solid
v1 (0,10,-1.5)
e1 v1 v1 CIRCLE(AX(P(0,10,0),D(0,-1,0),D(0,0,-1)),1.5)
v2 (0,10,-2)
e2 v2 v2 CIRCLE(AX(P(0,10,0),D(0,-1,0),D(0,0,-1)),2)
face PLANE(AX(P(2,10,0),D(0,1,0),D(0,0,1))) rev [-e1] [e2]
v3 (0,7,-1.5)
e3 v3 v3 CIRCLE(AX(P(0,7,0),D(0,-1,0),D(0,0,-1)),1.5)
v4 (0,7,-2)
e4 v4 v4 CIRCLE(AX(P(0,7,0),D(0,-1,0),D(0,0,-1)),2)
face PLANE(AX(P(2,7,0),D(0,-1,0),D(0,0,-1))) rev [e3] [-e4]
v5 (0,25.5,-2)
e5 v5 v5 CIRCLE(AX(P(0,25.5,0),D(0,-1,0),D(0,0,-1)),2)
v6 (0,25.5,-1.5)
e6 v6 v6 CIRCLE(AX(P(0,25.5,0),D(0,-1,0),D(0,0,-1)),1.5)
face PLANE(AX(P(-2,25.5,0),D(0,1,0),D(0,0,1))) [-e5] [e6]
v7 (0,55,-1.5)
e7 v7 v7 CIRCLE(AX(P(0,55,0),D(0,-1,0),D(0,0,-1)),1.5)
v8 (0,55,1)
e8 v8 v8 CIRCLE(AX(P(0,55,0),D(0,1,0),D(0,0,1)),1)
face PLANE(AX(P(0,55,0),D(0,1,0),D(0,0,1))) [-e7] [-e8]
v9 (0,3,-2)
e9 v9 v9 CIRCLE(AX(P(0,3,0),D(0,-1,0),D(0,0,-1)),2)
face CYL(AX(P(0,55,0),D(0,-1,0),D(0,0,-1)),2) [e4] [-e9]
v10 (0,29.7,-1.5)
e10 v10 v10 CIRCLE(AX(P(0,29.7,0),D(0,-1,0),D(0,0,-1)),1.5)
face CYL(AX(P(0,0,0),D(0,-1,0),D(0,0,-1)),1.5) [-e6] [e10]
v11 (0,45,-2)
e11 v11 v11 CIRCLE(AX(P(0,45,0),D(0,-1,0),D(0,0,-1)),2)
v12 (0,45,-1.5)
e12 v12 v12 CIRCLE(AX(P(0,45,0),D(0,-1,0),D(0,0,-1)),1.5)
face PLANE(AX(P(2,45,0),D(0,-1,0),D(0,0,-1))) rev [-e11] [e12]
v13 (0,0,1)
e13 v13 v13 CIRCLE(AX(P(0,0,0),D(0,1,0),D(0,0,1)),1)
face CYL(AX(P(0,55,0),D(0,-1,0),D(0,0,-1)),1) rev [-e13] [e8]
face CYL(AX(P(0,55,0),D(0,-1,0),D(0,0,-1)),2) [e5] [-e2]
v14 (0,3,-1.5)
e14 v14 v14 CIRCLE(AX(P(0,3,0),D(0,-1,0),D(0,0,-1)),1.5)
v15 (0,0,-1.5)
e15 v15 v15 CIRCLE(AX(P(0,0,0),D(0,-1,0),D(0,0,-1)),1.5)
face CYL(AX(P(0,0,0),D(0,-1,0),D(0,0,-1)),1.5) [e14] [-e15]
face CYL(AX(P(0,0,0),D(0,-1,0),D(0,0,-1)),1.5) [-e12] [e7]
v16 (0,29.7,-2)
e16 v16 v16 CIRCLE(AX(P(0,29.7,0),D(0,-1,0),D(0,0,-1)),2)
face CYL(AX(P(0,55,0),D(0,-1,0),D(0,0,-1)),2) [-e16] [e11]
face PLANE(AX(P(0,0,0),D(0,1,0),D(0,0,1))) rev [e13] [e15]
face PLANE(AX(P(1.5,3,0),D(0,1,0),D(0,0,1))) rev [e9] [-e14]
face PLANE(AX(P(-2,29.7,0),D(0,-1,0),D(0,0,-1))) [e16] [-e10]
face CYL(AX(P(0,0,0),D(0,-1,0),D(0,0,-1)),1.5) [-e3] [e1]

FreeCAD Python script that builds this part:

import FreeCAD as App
import Part
import Sketcher

doc = App.newDocument("Part")
body = doc.addObject("PartDesign::Body", "Body")

# Sketch on XZ plane
sketch1 = doc.addObject("Sketcher::SketchObject", "Sketch")
body.addObject(sketch1)
sketch1.AttachmentSupport = (doc.XZ_Plane, [""])
sketch1.MapMode = "FlatFace"
sketch1.addGeometry(Part.Circle(App.Vector(0, 0, 0), App.Vector(0, 0, 1), 2), False)
sketch1.addGeometry(Part.Circle(App.Vector(0, 0, 0), App.Vector(0, 0, 1), 1), False)
sketch1.addConstraint(Sketcher.Constraint("Coincident", 0, 3, -1, 1))
sketch1.addConstraint(Sketcher.Constraint("Coincident", 1, 3, -1, 1))
sketch1.addConstraint(Sketcher.Constraint("Diameter", 0, 4.0))
sketch1.addConstraint(Sketcher.Constraint("Diameter", 1, 2.0))
pad1 = doc.addObject("PartDesign::Pad", "Pad")
body.addObject(pad1)
pad1.Profile = sketch1
pad1.Length = 55
pad1.Reversed = True

# Sketch on XY plane
sketch2 = doc.addObject("Sketcher::SketchObject", "Sketch001")
body.addObject(sketch2)
sketch2.AttachmentSupport = (doc.XY_Plane, [""])
sketch2.MapMode = "FlatFace"
sketch2.addGeometry(Part.LineSegment(App.Vector(1.5, 3, 0), App.Vector(1.5, 0, 0)), False)
sketch2.addGeometry(Part.LineSegment(App.Vector(1.5, 0, 0), App.Vector(2, 0, 0)), False)
sketch2.addGeometry(Part.LineSegment(App.Vector(2, 0, 0), App.Vector(2, 3, 0)), False)
sketch2.addGeometry(Part.LineSegment(App.Vector(2, 3, 0), App.Vector(1.5, 3, 0)), False)
sketch2.addGeometry(Part.LineSegment(App.Vector(1.5, 10, 0), App.Vector(1.5, 7, 0)), False)
sketch2.addGeometry(Part.LineSegment(App.Vector(1.5, 7, 0), App.Vector(2, 7, 0)), False)
sketch2.addGeometry(Part.LineSegment(App.Vector(2, 7, 0), App.Vector(2, 10, 0)), False)
sketch2.addGeometry(Part.LineSegment(App.Vector(2, 10, 0), App.Vector(1.5, 10, 0)), False)
sketch2.addGeometry(Part.LineSegment(App.Vector(1.5, 55, 0), App.Vector(1.5, 45, 0)), False)
sketch2.addGeometry(Part.LineSegment(App.Vector(1.5, 45, 0), App.Vector(2, 45, 0)), False)
sketch2.addGeometry(Part.LineSegment(App.Vector(2, 45, 0), App.Vector(2, 55, 0)), False)
sketch2.addGeometry(Part.LineSegment(App.Vector(2, 55, 0), App.Vector(1.5, 55, 0)), False)
sketch2.addConstraint(Sketcher.Constraint("Coincident", 0, 2, 1, 1))
sketch2.addConstraint(Sketcher.Constraint("Coincident", 1, 2, 2, 1))
sketch2.addConstraint(Sketcher.Constraint("Coincident", 2, 2, 3, 1))
sketch2.addConstraint(Sketcher.Constraint("Coincident", 3, 2, 0, 1))
sketch2.addConstraint(Sketcher.Constraint("Coincident", 4, 2, 5, 1))
sketch2.addConstraint(Sketcher.Constraint("Coincident", 5, 2, 6, 1))
sketch2.addConstraint(Sketcher.Constraint("Coincident", 6, 2, 7, 1))
sketch2.addConstraint(Sketcher.Constraint("Coincident", 7, 2, 4, 1))
sketch2.addConstraint(Sketcher.Constraint("Coincident", 8, 2, 9, 1))
sketch2.addConstraint(Sketcher.Constraint("Coincident", 9, 2, 10, 1))
sketch2.addConstraint(Sketcher.Constraint("Coincident", 10, 2, 11, 1))
sketch2.addConstraint(Sketcher.Constraint("Coincident", 11, 2, 8, 1))
sketch2.addConstraint(Sketcher.Constraint("Vertical", 0))
sketch2.addConstraint(Sketcher.Constraint("Horizontal", 1))
sketch2.addConstraint(Sketcher.Constraint("Vertical", 2))
sketch2.addConstraint(Sketcher.Constraint("Horizontal", 3))
sketch2.addConstraint(Sketcher.Constraint("Vertical", 4))
sketch2.addConstraint(Sketcher.Constraint("Horizontal", 5))
sketch2.addConstraint(Sketcher.Constraint("Vertical", 6))
sketch2.addConstraint(Sketcher.Constraint("Horizontal", 7))
sketch2.addConstraint(Sketcher.Constraint("Vertical", 8))
sketch2.addConstraint(Sketcher.Constraint("Horizontal", 9))
sketch2.addConstraint(Sketcher.Constraint("Vertical", 10))
sketch2.addConstraint(Sketcher.Constraint("Horizontal", 11))
sketch2.addConstraint(Sketcher.Constraint("PointOnObject", 0, 2, -1))
sketch2.addConstraint(Sketcher.Constraint("Vertical", 3, 2, 4, 2))
sketch2.addConstraint(Sketcher.Constraint("Vertical", 2, 2, 5, 2))
sketch2.addConstraint(Sketcher.Constraint("Vertical", 7, 2, 8, 2))
sketch2.addConstraint(Sketcher.Constraint("Vertical", 6, 2, 9, 2))
sketch2.addConstraint(Sketcher.Constraint("Equal", 2, 4))
sketch2.addConstraint(Sketcher.Constraint("DistanceY", 0, 2, 0, 1, 3.0))
sketch2.addConstraint(Sketcher.Constraint("DistanceY", 8, 2, 8, 1, 10.0))
sketch2.addConstraint(Sketcher.Constraint("DistanceX", 1, 1, 1, 2, 0.5))
sketch2.addConstraint(Sketcher.Constraint("DistanceX", -1, 1, 1, 2, 2.0))
sketch2.addConstraint(Sketcher.Constraint("DistanceY", -1, 1, 4, 2, 7.0))
sketch2.addConstraint(Sketcher.Constraint("DistanceY", -1, 1, 8, 2, 45.0))
groove = doc.addObject("PartDesign::Groove", "Groove")
body.addObject(groove)
groove.Profile = sketch2
groove.ReferenceAxis = (sketch2, ["V_Axis"])
groove.Angle = 360

# Sketch on XY plane
sketch3 = doc.addObject("Sketcher::SketchObject", "Sketch002")
body.addObject(sketch3)
sketch3.AttachmentSupport = (doc.XY_Plane, [""])
sketch3.MapMode = "FlatFace"
sketch3.addGeometry(Part.LineSegment(App.Vector(-2, 29.7, 0), App.Vector(-2, 25.5, 0)), False)
sketch3.addGeometry(Part.LineSegment(App.Vector(-2, 25.5, 0), App.Vector(-1.5, 25.5, 0)), False)
sketch3.addGeometry(Part.LineSegment(App.Vector(-1.5, 25.5, 0), App.Vector(-1.5, 29.7, 0)), False)
sketch3.addGeometry(Part.LineSegment(App.Vector(-1.5, 29.7, 0), App.Vector(-2, 29.7, 0)), False)
sketch3.addConstraint(Sketcher.Constraint("Coincident", 0, 2, 1, 1))
sketch3.addConstraint(Sketcher.Constraint("Coincident", 1, 2, 2, 1))
sketch3.addConstraint(Sketcher.Constraint("Coincident", 2, 2, 3, 1))
sketch3.addConstraint(Sketcher.Constraint("Coincident", 3, 2, 0, 1))
sketch3.addConstraint(Sketcher.Constraint("Vertical", 0))
sketch3.addConstraint(Sketcher.Constraint("Horizontal", 1))
sketch3.addConstraint(Sketcher.Constraint("Vertical", 2))
sketch3.addConstraint(Sketcher.Constraint("Horizontal", 3))
sketch3.addConstraint(Sketcher.Constraint("DistanceX", 1, 1, 1, 2, 0.5))
sketch3.addConstraint(Sketcher.Constraint("DistanceY", 0, 2, 0, 1, 4.2))
sketch3.addConstraint(Sketcher.Constraint("DistanceX", 0, 2, -1, 1, 2.0))
sketch3.addConstraint(Sketcher.Constraint("DistanceY", -1, 1, 0, 2, 25.5))
groove2 = doc.addObject("PartDesign::Groove", "Groove001")
body.addObject(groove2)
groove2.Profile = sketch3
groove2.ReferenceAxis = (sketch3, ["V_Axis"])
groove2.Angle = 360

doc.recompute()
